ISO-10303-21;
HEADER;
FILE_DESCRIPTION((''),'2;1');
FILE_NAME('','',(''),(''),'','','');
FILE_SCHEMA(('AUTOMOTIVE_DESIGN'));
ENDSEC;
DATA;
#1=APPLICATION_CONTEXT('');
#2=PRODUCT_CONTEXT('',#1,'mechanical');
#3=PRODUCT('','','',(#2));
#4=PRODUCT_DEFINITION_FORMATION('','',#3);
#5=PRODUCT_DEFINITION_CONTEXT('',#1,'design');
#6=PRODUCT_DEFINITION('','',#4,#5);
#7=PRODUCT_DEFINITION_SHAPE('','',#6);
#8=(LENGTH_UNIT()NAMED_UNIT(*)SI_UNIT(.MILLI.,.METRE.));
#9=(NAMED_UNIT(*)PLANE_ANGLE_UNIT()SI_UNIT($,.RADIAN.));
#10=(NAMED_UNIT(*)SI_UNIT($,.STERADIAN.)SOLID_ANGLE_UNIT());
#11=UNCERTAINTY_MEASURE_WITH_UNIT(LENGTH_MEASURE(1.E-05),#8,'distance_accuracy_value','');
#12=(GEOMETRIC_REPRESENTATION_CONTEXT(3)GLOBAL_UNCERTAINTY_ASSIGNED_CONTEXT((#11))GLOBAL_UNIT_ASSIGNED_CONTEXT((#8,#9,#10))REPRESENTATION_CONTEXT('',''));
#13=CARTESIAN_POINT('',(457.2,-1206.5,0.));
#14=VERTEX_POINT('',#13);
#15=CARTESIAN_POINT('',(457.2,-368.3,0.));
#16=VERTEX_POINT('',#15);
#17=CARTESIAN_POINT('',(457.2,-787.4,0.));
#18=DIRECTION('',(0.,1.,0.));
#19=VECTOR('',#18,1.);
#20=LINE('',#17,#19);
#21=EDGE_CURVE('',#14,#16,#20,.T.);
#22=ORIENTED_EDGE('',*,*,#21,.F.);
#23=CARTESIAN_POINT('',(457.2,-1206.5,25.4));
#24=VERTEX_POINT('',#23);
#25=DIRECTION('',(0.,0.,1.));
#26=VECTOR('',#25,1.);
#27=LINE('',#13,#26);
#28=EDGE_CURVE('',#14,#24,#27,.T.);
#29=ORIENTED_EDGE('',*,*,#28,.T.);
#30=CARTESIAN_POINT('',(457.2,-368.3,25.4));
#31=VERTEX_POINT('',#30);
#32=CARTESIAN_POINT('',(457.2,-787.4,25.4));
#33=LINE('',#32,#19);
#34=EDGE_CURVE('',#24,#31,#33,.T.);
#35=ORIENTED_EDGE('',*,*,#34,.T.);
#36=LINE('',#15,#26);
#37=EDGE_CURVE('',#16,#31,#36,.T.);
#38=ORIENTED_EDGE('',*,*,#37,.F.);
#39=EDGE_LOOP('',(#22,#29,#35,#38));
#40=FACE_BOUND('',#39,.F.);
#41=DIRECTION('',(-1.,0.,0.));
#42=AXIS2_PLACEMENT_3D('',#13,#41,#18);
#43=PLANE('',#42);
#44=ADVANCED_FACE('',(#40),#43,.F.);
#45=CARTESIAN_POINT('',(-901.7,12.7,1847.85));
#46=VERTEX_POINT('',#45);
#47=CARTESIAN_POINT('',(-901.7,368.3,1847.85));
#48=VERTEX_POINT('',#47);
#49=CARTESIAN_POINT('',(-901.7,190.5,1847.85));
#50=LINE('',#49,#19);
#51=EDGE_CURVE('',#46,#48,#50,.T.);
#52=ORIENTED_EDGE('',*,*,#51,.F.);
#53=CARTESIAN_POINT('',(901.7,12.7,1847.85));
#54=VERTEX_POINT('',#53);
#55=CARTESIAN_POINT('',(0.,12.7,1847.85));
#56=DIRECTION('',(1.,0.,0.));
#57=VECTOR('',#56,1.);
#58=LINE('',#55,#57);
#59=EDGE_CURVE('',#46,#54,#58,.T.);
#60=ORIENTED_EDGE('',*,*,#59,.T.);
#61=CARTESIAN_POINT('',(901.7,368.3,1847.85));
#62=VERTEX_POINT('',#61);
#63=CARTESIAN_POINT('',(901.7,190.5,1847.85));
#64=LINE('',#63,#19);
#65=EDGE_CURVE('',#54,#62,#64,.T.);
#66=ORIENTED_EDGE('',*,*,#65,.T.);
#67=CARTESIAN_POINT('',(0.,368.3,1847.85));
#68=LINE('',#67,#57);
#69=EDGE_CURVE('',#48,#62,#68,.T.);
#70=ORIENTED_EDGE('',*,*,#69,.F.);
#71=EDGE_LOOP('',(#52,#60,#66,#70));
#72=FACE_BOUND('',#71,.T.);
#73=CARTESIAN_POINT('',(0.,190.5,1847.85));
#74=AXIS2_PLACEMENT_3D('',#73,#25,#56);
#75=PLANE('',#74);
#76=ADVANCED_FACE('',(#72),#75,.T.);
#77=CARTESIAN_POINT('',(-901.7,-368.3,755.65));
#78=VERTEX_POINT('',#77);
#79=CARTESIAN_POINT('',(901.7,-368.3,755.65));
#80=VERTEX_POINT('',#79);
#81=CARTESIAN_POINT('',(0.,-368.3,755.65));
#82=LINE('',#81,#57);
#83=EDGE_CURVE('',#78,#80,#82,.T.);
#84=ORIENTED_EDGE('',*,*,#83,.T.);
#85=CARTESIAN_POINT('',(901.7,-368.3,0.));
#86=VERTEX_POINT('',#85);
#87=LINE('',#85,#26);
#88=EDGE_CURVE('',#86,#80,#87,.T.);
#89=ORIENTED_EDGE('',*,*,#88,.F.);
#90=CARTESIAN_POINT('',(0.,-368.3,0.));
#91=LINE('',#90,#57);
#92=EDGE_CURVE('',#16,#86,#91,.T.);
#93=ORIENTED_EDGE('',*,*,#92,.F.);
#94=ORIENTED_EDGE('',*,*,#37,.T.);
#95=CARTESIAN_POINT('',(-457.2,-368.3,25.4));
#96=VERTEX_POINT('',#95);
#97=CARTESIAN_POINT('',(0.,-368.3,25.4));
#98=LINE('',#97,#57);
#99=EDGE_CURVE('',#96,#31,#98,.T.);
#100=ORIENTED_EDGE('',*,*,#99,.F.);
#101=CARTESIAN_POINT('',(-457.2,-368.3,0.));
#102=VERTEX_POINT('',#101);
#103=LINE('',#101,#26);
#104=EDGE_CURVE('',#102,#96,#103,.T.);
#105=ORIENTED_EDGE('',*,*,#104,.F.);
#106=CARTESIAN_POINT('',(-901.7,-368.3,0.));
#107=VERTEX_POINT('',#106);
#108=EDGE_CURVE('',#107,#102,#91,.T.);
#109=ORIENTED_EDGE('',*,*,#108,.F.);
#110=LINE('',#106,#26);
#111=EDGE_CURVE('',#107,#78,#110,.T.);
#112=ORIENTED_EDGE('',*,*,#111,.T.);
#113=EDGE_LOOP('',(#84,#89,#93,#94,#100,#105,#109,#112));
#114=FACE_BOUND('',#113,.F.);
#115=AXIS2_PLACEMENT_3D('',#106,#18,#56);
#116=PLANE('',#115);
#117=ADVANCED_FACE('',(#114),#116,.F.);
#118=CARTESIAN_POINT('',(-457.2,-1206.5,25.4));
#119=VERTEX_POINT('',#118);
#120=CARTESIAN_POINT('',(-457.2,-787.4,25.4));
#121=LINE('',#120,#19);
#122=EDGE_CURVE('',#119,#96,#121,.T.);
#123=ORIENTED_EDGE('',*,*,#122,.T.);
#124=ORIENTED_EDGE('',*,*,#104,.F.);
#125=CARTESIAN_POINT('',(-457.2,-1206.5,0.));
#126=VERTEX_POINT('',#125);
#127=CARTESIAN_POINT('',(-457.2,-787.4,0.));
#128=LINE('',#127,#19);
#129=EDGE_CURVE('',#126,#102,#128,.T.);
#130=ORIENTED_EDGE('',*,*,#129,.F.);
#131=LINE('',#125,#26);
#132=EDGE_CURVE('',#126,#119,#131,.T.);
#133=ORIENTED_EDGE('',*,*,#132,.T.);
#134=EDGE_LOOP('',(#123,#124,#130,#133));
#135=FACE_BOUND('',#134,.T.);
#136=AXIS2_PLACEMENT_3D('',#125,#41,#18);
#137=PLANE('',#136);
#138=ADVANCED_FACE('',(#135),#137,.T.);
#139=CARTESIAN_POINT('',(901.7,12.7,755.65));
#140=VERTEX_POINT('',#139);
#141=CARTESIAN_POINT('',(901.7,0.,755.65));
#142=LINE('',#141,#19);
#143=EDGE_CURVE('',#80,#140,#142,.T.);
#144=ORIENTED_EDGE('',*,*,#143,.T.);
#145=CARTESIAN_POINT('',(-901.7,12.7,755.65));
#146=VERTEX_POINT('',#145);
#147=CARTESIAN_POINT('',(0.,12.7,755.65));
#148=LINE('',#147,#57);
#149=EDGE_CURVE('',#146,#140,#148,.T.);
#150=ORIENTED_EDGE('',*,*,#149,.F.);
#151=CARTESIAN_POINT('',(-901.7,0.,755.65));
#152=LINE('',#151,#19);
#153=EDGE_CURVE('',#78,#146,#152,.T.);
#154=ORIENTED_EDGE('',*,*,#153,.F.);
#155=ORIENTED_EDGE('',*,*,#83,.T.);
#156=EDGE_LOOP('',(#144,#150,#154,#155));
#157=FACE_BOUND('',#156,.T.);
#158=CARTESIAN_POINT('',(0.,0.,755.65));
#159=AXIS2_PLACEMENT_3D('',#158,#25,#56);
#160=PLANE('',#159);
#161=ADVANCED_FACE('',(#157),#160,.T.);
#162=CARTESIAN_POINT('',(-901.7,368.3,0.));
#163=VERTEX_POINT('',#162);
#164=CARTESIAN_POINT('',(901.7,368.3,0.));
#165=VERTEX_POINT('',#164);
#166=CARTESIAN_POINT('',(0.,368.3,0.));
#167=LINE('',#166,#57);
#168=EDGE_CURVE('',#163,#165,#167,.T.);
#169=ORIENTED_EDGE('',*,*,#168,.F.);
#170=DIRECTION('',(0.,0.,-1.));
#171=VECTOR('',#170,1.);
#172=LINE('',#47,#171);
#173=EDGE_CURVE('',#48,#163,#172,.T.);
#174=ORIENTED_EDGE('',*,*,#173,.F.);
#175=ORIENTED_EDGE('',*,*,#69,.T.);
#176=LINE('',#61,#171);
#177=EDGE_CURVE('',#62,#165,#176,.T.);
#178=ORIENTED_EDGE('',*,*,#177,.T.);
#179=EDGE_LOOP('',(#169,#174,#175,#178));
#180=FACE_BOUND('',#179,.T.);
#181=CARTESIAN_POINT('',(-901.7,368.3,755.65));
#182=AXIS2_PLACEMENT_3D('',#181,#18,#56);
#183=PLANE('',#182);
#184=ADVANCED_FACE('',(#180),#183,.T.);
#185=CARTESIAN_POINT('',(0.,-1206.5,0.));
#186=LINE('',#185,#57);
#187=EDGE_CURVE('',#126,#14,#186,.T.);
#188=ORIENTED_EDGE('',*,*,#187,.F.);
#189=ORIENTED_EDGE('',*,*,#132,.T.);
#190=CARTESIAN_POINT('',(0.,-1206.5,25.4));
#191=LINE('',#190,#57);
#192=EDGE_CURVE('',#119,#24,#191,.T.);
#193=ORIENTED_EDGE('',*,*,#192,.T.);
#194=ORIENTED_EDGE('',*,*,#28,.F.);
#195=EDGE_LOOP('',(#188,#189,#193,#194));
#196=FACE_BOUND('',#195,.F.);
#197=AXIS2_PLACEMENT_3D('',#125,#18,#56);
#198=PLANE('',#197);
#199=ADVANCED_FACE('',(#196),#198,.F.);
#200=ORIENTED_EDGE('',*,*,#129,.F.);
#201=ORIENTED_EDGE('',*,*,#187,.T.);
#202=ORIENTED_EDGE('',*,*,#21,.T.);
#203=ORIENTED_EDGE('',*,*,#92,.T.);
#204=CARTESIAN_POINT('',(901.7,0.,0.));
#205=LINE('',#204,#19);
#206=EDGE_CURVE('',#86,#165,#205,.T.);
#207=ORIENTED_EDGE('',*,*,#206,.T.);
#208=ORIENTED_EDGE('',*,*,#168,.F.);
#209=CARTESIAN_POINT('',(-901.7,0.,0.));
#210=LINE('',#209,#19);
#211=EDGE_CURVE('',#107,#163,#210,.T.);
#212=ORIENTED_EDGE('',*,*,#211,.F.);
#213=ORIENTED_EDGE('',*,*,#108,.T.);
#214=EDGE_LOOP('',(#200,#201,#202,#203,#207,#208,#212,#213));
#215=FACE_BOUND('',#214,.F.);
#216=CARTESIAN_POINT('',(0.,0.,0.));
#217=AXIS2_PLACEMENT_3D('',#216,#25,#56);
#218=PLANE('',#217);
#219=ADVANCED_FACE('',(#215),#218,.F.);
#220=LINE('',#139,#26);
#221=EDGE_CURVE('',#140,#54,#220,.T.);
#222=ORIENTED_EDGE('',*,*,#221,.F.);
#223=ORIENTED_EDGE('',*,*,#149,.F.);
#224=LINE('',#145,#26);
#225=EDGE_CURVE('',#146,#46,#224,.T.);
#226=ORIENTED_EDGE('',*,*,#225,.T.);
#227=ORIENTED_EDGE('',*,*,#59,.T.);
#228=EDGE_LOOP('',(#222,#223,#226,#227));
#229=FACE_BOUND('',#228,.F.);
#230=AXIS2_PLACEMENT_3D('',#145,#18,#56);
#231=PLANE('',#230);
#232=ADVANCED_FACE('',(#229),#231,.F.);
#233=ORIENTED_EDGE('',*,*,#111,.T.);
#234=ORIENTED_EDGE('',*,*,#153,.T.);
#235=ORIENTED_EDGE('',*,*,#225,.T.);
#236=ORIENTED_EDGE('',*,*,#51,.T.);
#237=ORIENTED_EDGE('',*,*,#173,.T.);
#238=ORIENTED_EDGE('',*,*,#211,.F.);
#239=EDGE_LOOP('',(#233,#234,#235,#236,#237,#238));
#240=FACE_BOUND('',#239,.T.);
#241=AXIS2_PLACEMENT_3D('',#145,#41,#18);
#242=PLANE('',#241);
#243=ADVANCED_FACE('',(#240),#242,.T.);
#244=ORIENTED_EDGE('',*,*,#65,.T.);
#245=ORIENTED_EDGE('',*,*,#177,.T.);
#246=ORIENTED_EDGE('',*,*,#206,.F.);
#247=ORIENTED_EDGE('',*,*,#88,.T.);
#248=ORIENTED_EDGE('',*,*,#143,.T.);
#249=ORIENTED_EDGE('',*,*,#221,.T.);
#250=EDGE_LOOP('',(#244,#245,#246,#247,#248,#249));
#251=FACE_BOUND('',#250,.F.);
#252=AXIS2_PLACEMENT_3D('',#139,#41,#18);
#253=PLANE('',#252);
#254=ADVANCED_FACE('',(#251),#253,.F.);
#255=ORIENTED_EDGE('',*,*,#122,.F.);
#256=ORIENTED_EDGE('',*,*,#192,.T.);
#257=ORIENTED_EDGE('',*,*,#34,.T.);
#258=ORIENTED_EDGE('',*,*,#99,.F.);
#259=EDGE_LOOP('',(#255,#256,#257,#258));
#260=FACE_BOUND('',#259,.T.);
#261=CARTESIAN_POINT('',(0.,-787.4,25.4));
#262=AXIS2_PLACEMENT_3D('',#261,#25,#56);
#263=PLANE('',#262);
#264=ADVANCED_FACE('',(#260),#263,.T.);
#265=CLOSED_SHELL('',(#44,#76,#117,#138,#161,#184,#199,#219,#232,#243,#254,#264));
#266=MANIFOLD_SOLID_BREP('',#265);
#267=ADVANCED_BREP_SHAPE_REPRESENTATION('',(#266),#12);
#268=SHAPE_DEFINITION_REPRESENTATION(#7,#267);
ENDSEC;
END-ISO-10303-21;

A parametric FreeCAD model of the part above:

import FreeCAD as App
import Part
import Sketcher
Q = App.Units.Quantity

doc = App.newDocument("Part")
body = doc.addObject("PartDesign::Body", "Body")

# Sketch on XY plane
sketch1 = doc.addObject("Sketcher::SketchObject", "Sketch")
body.addObject(sketch1)
sketch1.AttachmentSupport = (doc.XY_Plane, [""])
sketch1.MapMode = "FlatFace"
sketch1.addGeometry([
    Part.LineSegment(App.Vector(-902, 368, 0), App.Vector(-902, -368, 0)),
    Part.LineSegment(App.Vector(-902, -368, 0), App.Vector(902, -368, 0)),
    Part.LineSegment(App.Vector(902, -368, 0), App.Vector(902, 368, 0)),
    Part.LineSegment(App.Vector(902, 368, 0), App.Vector(-902, 368, 0)),
], False)
sketch1.addConstraint([
    Sketcher.Constraint("Coincident", 0, 2, 1, 1),
    Sketcher.Constraint("Coincident", 1, 2, 2, 1),
    Sketcher.Constraint("Coincident", 2, 2, 3, 1),
    Sketcher.Constraint("Coincident", 3, 2, 0, 1),
    Sketcher.Constraint("Vertical", 0),
    Sketcher.Constraint("Horizontal", 1),
    Sketcher.Constraint("Vertical", 2),
    Sketcher.Constraint("Horizontal", 3),
    Sketcher.Constraint("Symmetric", 0, 2, 2, 2, -1, 1),
    Sketcher.Constraint("DistanceX", 1, 1, 1, 2, Q("71 in")),
    Sketcher.Constraint("DistanceY", 0, 2, 0, 1, Q("29 in")),
])
pad1 = doc.addObject("PartDesign::Pad", "Pad")
body.addObject(pad1)
pad1.Profile = sketch1
pad1.Length = Q("29.75 in")

# Sketch on XY plane
sketch2 = doc.addObject("Sketcher::SketchObject", "Sketch001")
body.addObject(sketch2)
sketch2.AttachmentSupport = (doc.XY_Plane, [""])
sketch2.MapMode = "FlatFace"
sketch2.addGeometry([
    Part.LineSegment(App.Vector(-457, -368, 0), App.Vector(-457, -1206, 0)),
    Part.LineSegment(App.Vector(-457, -1206, 0), App.Vector(457, -1206, 0)),
    Part.LineSegment(App.Vector(457, -1206, 0), App.Vector(457, -368, 0)),
    Part.LineSegment(App.Vector(457, -368, 0), App.Vector(-457, -368, 0)),
], False)
sketch2.addConstraint([
    Sketcher.Constraint("Coincident", 0, 2, 1, 1),
    Sketcher.Constraint("Coincident", 1, 2, 2, 1),
    Sketcher.Constraint("Coincident", 2, 2, 3, 1),
    Sketcher.Constraint("Coincident", 3, 2, 0, 1),
    Sketcher.Constraint("Vertical", 0),
    Sketcher.Constraint("Horizontal", 1),
    Sketcher.Constraint("Vertical", 2),
    Sketcher.Constraint("Horizontal", 3),
    Sketcher.Constraint("DistanceX", 1, 1, 1, 2, Q("36 in")),
    Sketcher.Constraint("DistanceY", 0, 2, 0, 1, Q("33 in")),
    Sketcher.Constraint("DistanceX", 0, 2, -1, 1, Q("18 in")),
    Sketcher.Constraint("DistanceY", 0, 2, -1, 1, Q("47.5 in")),
])
pad2 = doc.addObject("PartDesign::Pad", "Pad001")
body.addObject(pad2)
pad2.Profile = sketch2
pad2.Length = Q("1 in")

# Sketch on XY plane
sketch3 = doc.addObject("Sketcher::SketchObject", "Sketch002")
body.addObject(sketch3)
sketch3.AttachmentSupport = (doc.XY_Plane, [""])
sketch3.MapMode = "FlatFace"
sketch3.AttachmentOffset = App.Placement(App.Vector(0, 0, 29.75 * 25.4), App.Rotation())
sketch3.addGeometry([
    Part.LineSegment(App.Vector(-902, 368, 0), App.Vector(-902, 13, 0)),
    Part.LineSegment(App.Vector(-902, 13, 0), App.Vector(902, 13, 0)),
    Part.LineSegment(App.Vector(902, 13, 0), App.Vector(902, 368, 0)),
    Part.LineSegment(App.Vector(902, 368, 0), App.Vector(-902, 368, 0)),
], False)
sketch3.addConstraint([
    Sketcher.Constraint("Coincident", 0, 2, 1, 1),
    Sketcher.Constraint("Coincident", 1, 2, 2, 1),
    Sketcher.Constraint("Coincident", 2, 2, 3, 1),
    Sketcher.Constraint("Coincident", 3, 2, 0, 1),
    Sketcher.Constraint("Vertical", 0),
    Sketcher.Constraint("Horizontal", 1),
    Sketcher.Constraint("Vertical", 2),
    Sketcher.Constraint("Horizontal", 3),
    Sketcher.Constraint("DistanceX", 1, 1, 1, 2, Q("71 in")),
    Sketcher.Constraint("DistanceY", 0, 2, 0, 1, Q("14 in")),
    Sketcher.Constraint("DistanceX", 0, 2, -1, 1, Q("35.5 in")),
    Sketcher.Constraint("DistanceY", -1, 1, 0, 2, Q("0.5 in")),
])
pad3 = doc.addObject("PartDesign::Pad", "Pad002")
body.addObject(pad3)
pad3.Profile = sketch3
pad3.Length = Q("43 in")

doc.recompute()
